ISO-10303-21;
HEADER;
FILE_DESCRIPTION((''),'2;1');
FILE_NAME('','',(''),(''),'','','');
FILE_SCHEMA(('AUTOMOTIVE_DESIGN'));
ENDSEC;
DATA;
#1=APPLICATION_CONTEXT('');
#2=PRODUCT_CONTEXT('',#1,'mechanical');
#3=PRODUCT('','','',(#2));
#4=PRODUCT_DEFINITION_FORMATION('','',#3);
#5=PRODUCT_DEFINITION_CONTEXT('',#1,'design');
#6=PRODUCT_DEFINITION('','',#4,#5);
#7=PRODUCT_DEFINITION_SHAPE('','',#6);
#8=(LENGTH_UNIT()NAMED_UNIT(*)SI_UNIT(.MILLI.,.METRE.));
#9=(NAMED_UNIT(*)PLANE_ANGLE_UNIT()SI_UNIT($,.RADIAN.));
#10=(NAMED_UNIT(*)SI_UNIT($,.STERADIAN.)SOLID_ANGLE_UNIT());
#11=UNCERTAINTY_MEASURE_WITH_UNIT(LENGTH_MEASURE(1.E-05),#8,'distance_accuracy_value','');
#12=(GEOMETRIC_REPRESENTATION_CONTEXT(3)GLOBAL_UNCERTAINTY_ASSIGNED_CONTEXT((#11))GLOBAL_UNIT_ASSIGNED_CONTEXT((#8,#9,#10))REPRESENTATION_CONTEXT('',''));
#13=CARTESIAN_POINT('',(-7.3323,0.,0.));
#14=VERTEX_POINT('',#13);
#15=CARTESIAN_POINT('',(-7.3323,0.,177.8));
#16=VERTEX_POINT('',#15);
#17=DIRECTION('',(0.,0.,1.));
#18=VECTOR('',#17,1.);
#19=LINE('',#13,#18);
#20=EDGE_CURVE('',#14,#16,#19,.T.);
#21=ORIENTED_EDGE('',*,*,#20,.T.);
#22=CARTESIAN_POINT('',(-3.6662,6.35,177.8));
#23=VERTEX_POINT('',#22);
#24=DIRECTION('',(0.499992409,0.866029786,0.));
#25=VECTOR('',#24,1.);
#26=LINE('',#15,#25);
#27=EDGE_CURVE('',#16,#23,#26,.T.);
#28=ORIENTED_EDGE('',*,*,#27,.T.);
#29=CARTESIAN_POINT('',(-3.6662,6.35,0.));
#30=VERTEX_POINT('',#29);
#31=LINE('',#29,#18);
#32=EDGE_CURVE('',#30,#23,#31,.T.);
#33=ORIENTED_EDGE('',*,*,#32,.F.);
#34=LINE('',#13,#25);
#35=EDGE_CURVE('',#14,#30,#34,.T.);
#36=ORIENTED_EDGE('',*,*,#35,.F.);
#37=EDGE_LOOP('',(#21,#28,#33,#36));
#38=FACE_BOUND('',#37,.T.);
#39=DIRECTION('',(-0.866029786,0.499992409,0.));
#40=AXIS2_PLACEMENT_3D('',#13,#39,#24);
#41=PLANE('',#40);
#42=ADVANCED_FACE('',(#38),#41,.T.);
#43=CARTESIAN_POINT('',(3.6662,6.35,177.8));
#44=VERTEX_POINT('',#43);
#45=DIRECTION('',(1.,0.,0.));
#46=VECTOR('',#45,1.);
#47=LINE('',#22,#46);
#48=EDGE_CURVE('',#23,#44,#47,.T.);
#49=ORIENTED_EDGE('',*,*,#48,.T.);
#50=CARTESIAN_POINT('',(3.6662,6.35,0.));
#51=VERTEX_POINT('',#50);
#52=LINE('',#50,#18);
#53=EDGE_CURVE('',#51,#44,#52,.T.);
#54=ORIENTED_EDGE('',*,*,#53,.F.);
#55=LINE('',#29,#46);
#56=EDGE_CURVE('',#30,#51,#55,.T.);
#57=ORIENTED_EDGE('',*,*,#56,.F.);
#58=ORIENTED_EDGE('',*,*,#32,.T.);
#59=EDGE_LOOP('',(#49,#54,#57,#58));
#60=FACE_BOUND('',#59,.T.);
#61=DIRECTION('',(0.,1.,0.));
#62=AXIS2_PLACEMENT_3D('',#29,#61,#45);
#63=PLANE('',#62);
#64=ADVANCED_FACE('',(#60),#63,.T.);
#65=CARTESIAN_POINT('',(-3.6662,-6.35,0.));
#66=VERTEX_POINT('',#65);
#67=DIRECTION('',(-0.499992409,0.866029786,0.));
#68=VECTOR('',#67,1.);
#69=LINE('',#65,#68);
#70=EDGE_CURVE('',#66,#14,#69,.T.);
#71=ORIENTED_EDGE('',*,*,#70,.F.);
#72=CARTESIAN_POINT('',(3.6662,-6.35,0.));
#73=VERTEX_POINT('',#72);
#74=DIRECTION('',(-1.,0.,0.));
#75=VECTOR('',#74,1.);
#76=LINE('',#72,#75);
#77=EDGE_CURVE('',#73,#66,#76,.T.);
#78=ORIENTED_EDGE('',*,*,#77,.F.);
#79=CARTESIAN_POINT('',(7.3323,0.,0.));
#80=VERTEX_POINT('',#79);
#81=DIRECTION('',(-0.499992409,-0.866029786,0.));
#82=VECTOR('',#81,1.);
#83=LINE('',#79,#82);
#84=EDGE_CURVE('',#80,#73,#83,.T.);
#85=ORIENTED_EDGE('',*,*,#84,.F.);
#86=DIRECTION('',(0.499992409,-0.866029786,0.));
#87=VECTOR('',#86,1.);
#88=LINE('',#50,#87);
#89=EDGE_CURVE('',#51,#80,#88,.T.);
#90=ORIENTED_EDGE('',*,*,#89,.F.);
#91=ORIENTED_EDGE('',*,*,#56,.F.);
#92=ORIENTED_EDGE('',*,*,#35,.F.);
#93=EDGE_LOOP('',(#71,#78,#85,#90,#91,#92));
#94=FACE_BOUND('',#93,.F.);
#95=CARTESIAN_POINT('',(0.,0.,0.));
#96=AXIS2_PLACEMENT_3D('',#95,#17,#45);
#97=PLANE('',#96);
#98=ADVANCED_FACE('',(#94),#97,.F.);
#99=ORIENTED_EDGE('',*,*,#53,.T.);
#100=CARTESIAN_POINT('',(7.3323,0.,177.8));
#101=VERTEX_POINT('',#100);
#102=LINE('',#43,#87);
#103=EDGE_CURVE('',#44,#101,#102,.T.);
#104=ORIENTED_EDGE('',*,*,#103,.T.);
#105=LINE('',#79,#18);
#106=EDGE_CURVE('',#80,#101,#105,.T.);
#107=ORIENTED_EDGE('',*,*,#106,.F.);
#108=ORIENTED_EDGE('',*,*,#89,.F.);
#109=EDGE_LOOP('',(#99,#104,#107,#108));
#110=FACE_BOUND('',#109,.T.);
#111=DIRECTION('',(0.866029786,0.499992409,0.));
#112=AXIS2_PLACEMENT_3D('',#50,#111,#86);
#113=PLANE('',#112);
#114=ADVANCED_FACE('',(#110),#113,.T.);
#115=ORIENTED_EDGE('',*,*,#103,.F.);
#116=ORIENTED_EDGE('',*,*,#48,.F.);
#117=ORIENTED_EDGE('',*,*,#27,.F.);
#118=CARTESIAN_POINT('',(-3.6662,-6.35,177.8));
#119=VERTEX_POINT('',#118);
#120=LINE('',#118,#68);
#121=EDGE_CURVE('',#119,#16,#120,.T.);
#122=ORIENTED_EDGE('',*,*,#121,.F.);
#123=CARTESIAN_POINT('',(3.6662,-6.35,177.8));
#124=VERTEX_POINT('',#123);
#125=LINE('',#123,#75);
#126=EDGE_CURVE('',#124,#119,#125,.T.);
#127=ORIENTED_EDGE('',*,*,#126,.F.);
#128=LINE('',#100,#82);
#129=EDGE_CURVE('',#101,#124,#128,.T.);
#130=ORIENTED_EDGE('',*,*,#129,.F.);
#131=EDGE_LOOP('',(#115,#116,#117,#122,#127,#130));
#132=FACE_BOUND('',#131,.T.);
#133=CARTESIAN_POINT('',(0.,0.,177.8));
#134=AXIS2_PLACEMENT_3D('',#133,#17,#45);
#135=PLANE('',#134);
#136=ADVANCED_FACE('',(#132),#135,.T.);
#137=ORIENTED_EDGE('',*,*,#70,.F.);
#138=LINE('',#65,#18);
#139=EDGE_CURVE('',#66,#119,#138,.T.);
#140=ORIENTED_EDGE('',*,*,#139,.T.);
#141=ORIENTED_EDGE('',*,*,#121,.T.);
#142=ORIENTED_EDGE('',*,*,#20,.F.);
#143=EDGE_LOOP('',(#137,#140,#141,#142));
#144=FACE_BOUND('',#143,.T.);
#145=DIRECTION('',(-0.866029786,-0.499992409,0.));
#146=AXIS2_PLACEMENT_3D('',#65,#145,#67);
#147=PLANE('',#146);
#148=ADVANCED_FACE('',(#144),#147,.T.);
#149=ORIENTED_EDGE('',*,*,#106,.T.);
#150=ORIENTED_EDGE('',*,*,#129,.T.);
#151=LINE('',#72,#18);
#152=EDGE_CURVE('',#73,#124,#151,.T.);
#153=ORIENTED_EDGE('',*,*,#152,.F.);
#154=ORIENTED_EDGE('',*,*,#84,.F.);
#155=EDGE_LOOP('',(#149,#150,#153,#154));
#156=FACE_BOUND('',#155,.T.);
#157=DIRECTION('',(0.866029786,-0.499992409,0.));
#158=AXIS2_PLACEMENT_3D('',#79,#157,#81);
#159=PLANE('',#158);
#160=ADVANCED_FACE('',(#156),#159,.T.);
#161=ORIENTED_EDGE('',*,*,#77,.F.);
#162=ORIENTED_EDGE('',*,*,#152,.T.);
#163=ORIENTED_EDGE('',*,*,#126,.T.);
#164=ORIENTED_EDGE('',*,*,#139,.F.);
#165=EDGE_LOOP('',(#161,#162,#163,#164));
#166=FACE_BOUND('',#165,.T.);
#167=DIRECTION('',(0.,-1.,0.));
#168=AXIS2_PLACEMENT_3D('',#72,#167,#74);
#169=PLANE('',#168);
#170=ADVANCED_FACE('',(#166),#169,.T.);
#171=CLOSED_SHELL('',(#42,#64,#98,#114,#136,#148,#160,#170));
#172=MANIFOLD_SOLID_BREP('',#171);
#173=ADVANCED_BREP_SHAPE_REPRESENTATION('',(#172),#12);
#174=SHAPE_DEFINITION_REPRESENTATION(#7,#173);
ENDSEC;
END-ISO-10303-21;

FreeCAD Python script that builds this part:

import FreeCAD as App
import Part
import Sketcher

V = App.Vector
Q = App.Units.Quantity

doc = App.newDocument("Part")
params = doc.addObject("Spreadsheet::Sheet", "Params")
for row, (alias, value) in enumerate([
    ("pad1_length", "7 in"),
], start=1):
    params.set(f"A{row}", alias)
    params.set(f"B{row}", "=" + value)
    params.setAlias(f"B{row}", alias)

body = doc.addObject("PartDesign::Body", "Body")

# Sketch on XY plane
sketch1 = body.newObject("Sketcher::SketchObject", "Sketch")
sketch1.AttachmentSupport = (doc.getObject("XY_Plane"), [""])
sketch1.MapMode = "FlatFace"
sketch1.addGeometry([
    Part.LineSegment(V(-3.6662, -6.35, 0), V(3.6662, -6.35, 0)),  # 0
    Part.LineSegment(V(3.6662, -6.35, 0), V(7.3323, 0, 0)),  # 1
    Part.LineSegment(V(7.3323, 0, 0), V(3.6662, 6.35, 0)),  # 2
    Part.LineSegment(V(3.6662, 6.35, 0), V(-3.6662, 6.35, 0)),  # 3
    Part.LineSegment(V(-3.6662, 6.35, 0), V(-7.3323, 0, 0)),  # 4
    Part.LineSegment(V(-7.3323, 0, 0), V(-3.6662, -6.35, 0)),  # 5
], False)
sketch1.addConstraint([
    Sketcher.Constraint("Coincident", 0, 2, 1, 1),
    Sketcher.Constraint("Coincident", 1, 2, 2, 1),
    Sketcher.Constraint("Coincident", 2, 2, 3, 1),
    Sketcher.Constraint("Coincident", 3, 2, 4, 1),
    Sketcher.Constraint("Coincident", 4, 2, 5, 1),
    Sketcher.Constraint("Coincident", 5, 2, 0, 1),
    Sketcher.Constraint("Horizontal", 0),
    Sketcher.Constraint("Horizontal", 3),
    Sketcher.Constraint("Symmetric", 0, 2, 3, 2, -1, 1),
    Sketcher.Constraint("Symmetric", 1, 2, 4, 2, -1, 1),
    Sketcher.Constraint("PointOnObject", 1, 2, -1),
    Sketcher.Constraint("Parallel", 2, 5),
    Sketcher.Constraint("Vertical", 0, 2, 2, 2),
    Sketcher.Constraint("DistanceY", 0, 2, 2, 2, Q("0.5 in")),
    Sketcher.Constraint("Angle", 1, Q("60.0005 deg")),
    Sketcher.Constraint("DistanceX", 3, 2, 1, 2, Q("0.433 in")),
])
pad1 = body.newObject("PartDesign::Pad", "Pad")
pad1.Profile = sketch1
pad1.setExpression("Length", "Params.pad1_length")

doc.recompute()
